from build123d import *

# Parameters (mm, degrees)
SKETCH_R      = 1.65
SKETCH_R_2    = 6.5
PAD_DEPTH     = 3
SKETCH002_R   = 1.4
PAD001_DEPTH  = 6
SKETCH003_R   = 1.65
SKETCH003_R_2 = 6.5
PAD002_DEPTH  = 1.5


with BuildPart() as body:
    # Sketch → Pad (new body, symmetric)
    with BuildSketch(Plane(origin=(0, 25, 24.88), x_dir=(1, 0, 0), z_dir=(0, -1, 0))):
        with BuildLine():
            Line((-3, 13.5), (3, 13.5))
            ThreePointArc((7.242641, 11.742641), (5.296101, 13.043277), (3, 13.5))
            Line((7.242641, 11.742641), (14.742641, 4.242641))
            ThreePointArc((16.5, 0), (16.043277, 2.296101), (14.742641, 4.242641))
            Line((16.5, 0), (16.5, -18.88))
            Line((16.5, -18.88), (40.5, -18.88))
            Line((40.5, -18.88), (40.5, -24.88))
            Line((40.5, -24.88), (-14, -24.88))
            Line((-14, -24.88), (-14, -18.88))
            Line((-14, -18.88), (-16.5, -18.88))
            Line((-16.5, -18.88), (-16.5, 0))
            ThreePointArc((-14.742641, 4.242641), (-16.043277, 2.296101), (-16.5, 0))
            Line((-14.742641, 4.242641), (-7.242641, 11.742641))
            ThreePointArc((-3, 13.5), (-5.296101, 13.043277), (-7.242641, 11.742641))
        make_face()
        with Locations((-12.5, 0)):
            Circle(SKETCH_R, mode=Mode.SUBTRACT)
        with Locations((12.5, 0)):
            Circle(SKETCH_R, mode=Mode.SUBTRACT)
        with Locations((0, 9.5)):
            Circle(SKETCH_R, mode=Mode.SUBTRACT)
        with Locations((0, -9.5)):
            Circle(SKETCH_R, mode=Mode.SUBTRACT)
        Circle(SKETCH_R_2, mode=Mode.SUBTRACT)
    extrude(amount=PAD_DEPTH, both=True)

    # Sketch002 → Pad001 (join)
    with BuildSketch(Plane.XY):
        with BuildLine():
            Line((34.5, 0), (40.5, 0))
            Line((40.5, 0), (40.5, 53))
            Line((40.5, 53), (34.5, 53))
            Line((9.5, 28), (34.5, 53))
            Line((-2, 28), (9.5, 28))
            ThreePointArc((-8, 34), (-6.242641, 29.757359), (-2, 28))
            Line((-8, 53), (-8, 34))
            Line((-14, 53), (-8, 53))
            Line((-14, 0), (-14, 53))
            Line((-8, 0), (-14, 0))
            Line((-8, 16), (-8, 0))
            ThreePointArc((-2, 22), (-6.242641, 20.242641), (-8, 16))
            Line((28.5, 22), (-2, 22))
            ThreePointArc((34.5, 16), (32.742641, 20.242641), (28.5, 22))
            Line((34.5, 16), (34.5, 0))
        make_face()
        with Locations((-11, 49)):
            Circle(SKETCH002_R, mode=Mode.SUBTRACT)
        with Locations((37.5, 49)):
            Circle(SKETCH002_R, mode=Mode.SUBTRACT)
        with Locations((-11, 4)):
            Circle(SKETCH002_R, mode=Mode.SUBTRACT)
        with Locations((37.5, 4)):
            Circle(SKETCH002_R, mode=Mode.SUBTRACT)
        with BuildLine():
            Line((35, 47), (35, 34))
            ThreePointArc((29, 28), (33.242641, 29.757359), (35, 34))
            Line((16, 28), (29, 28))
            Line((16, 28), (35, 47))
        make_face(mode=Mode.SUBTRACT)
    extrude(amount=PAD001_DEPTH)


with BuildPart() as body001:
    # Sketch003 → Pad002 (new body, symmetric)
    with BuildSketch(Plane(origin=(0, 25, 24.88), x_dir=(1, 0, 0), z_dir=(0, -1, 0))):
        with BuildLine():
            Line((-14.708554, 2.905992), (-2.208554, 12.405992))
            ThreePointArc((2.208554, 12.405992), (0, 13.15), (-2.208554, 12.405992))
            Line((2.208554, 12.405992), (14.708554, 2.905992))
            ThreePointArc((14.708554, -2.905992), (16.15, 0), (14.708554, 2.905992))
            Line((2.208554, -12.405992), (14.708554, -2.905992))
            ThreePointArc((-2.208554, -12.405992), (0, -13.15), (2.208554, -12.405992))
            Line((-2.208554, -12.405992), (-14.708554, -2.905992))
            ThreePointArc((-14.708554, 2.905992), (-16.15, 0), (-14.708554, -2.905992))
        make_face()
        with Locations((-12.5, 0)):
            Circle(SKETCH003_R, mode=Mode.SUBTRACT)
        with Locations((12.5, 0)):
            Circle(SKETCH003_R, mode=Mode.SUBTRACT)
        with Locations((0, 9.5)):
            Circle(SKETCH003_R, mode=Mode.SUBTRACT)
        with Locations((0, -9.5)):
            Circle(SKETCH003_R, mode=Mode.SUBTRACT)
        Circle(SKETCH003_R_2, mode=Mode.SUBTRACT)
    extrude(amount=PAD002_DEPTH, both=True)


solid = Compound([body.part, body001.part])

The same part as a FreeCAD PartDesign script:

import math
import FreeCAD as App
import Part
import Sketcher
from FreeCAD import Vector

doc = App.newDocument("Part")
body = doc.addObject("PartDesign::Body", "Body")

sketch1 = body.newObject("Sketcher::SketchObject", "Sketch")
sketch1.AttachmentSupport = (doc.getObject("XZ_Plane"), [""])
sketch1.MapMode = "FlatFace"
sketch1.AttachmentOffset = App.Placement(Vector(0, 0, -25), App.Rotation())
sketch1.addGeometry(Part.LineSegment(Vector(3, 38.38, 0), Vector(-3, 38.38, 0)), False)
sketch1.addGeometry(Part.ArcOfCircle(Part.Circle(Vector(-2.999999, 32.379997, 0), Vector(0, 0, 1), 6.000003), math.radians(90.000007), math.radians(134.999983)), False)
sketch1.addGeometry(Part.LineSegment(Vector(-7.242641, 36.622641, 0), Vector(-14.742641, 29.122641, 0)), False)
sketch1.addGeometry(Part.ArcOfCircle(Part.Circle(Vector(-10.499997, 24.879999, 0), Vector(0, 0, 1), 6.000003), math.radians(135.000017), math.radians(179.999993)), False)
sketch1.addGeometry(Part.LineSegment(Vector(-16.5, 24.88, 0), Vector(-16.5, 6, 0)), False)
sketch1.addGeometry(Part.LineSegment(Vector(-16.5, 6, 0), Vector(-14, 6, 0)), False)
sketch1.addGeometry(Part.LineSegment(Vector(-14, 6, 0), Vector(-14, 0, 0)), False)
sketch1.addGeometry(Part.LineSegment(Vector(-14, 0, 0), Vector(40.5, 0, 0)), False)
sketch1.addGeometry(Part.LineSegment(Vector(40.5, 0, 0), Vector(40.5, 6, 0)), False)
sketch1.addGeometry(Part.LineSegment(Vector(40.5, 6, 0), Vector(16.5, 6, 0)), False)
sketch1.addGeometry(Part.LineSegment(Vector(16.5, 6, 0), Vector(16.5, 24.88, 0)), False)
sketch1.addGeometry(Part.ArcOfCircle(Part.Circle(Vector(10.499997, 24.879999, 0), Vector(0, 0, 1), 6.000003), math.radians(0.000007), math.radians(44.999983)), False)
sketch1.addGeometry(Part.LineSegment(Vector(14.742641, 29.122641, 0), Vector(7.242641, 36.622641, 0)), False)
sketch1.addGeometry(Part.ArcOfCircle(Part.Circle(Vector(2.999999, 32.379997, 0), Vector(0, 0, 1), 6.000003), math.radians(45.000017), math.radians(89.999993)), False)
sketch1.addGeometry(Part.Circle(Vector(0, 15.38, 0), Vector(0, 0, 1), 1.65), False)
sketch1.addGeometry(Part.Circle(Vector(12.5, 24.88, 0), Vector(0, 0, 1), 1.65), False)
sketch1.addGeometry(Part.Circle(Vector(0, 24.88, 0), Vector(0, 0, 1), 6.5), False)
sketch1.addGeometry(Part.Circle(Vector(-12.5, 24.88, 0), Vector(0, 0, 1), 1.65), False)
sketch1.addGeometry(Part.Circle(Vector(0, 34.38, 0), Vector(0, 0, 1), 1.65), False)
sketch1.addConstraint(Sketcher.Constraint("Tangent", 0, 2, 1, 1))
sketch1.addConstraint(Sketcher.Constraint("Tangent", 1, 2, 2, 1))
sketch1.addConstraint(Sketcher.Constraint("Tangent", 2, 2, 3, 1))
sketch1.addConstraint(Sketcher.Constraint("Tangent", 3, 2, 4, 1))
sketch1.addConstraint(Sketcher.Constraint("Coincident", 4, 2, 5, 1))
sketch1.addConstraint(Sketcher.Constraint("Coincident", 5, 2, 6, 1))
sketch1.addConstraint(Sketcher.Constraint("Coincident", 6, 2, 7, 1))
sketch1.addConstraint(Sketcher.Constraint("Coincident", 7, 2, 8, 1))
sketch1.addConstraint(Sketcher.Constraint("Coincident", 8, 2, 9, 1))
sketch1.addConstraint(Sketcher.Constraint("Coincident", 9, 2, 10, 1))
sketch1.addConstraint(Sketcher.Constraint("Tangent", 10, 2, 11, 1))
sketch1.addConstraint(Sketcher.Constraint("Tangent", 11, 2, 12, 1))
sketch1.addConstraint(Sketcher.Constraint("Tangent", 12, 2, 13, 1))
sketch1.addConstraint(Sketcher.Constraint("Tangent", 13, 2, 0, 1))
sketch1.addConstraint(Sketcher.Constraint("Horizontal", 0))
sketch1.addConstraint(Sketcher.Constraint("Vertical", 4))
sketch1.addConstraint(Sketcher.Constraint("Horizontal", 5))
sketch1.addConstraint(Sketcher.Constraint("Vertical", 6))
sketch1.addConstraint(Sketcher.Constraint("Horizontal", 7))
sketch1.addConstraint(Sketcher.Constraint("Vertical", 8))
sketch1.addConstraint(Sketcher.Constraint("Horizontal", 9))
sketch1.addConstraint(Sketcher.Constraint("Vertical", 10))
sketch1.addConstraint(Sketcher.Constraint("Equal", 1, 3))
sketch1.addConstraint(Sketcher.Constraint("Equal", 3, 11))
sketch1.addConstraint(Sketcher.Constraint("Equal", 11, 13))
sketch1.addConstraint(Sketcher.Constraint("Equal", 14, 15))
sketch1.addConstraint(Sketcher.Constraint("Equal", 15, 17))
sketch1.addConstraint(Sketcher.Constraint("Equal", 17, 18))
sketch1.addConstraint(Sketcher.Constraint("Symmetric", 3, 3, 11, 3, -2))
sketch1.addConstraint(Sketcher.Constraint("Symmetric", 15, 3, 17, 3, -2))
sketch1.addConstraint(Sketcher.Constraint("PointOnObject", 14, 3, -2))
sketch1.addConstraint(Sketcher.Constraint("PointOnObject", 16, 3, -2))
sketch1.addConstraint(Sketcher.Constraint("PointOnObject", 18, 3, -2))
sketch1.addConstraint(Sketcher.Constraint("PointOnObject", 6, 2, -1))
sketch1.addConstraint(Sketcher.Constraint("Perpendicular", 2, 12))
sketch1.addConstraint(Sketcher.Constraint("Horizontal", 11, 3, 15, 3))
sketch1.addConstraint(Sketcher.Constraint("Horizontal", 15, 3, 16, 3))
sketch1.addConstraint(Sketcher.Constraint("Horizontal", 5, 2, 8, 2))
sketch1.addConstraint(Sketcher.Constraint("Horizontal", 2, 2, 11, 2))
sketch1.addConstraint(Sketcher.Constraint("Equal", 0, 6))
sketch1.addConstraint(Sketcher.Constraint("Diameter", 16, 13.0))
sketch1.addConstraint(Sketcher.Constraint("Diameter", 14, 3.3))
sketch1.addConstraint(Sketcher.Constraint("DistanceX", 0, 2, 0, 1, 6.0))
sketch1.addConstraint(Sketcher.Constraint("DistanceX", 9, 2, 9, 1, 24.0))
sketch1.addConstraint(Sketcher.Constraint("DistanceX", 5, 1, 5, 2, 2.5))
sketch1.addConstraint(Sketcher.Constraint("DistanceX", 7, 1, 7, 2, 54.5))
sketch1.addConstraint(Sketcher.Constraint("DistanceY", 18, 3, 0, 2, 4.0))
sketch1.addConstraint(Sketcher.Constraint("DistanceX", 3, 2, 17, 3, 4.0))
sketch1.addConstraint(Sketcher.Constraint("DistanceY", 4, 2, 4, 1, 18.88))
sketch1.addConstraint(Sketcher.Constraint("DistanceY", 14, 3, 3, 3, 9.499999))
sketch1.addConstraint(Sketcher.Constraint("DistanceX", 2, 2, 1, 2, 7.5))
pad1 = body.newObject("PartDesign::Pad", "Pad")
pad1.Profile = sketch1
pad1.Length = 6
pad1.Midplane = True

sketch2 = body.newObject("Sketcher::SketchObject", "Sketch001")
sketch2.AttachmentSupport = (doc.getObject("XY_Plane"), [""])
sketch2.MapMode = "FlatFace"
sketch2.addGeometry(Part.LineSegment(Vector(34.5, 0, 0), Vector(40.5, 0, 0)), False)
sketch2.addGeometry(Part.LineSegment(Vector(40.5, 0, 0), Vector(40.5, 53, 0)), False)
sketch2.addGeometry(Part.LineSegment(Vector(40.5, 53, 0), Vector(34.5, 53, 0)), False)
sketch2.addGeometry(Part.LineSegment(Vector(34.5, 53, 0), Vector(9.5, 28, 0)), False)
sketch2.addGeometry(Part.LineSegment(Vector(9.5, 28, 0), Vector(-2, 28, 0)), False)
sketch2.addGeometry(Part.ArcOfCircle(Part.Circle(Vector(-2.000001, 33.999999, 0), Vector(0, 0, 1), 5.999999), math.radians(179.99999), math.radians(270.00001)), False)
sketch2.addGeometry(Part.LineSegment(Vector(-8, 34, 0), Vector(-8, 53, 0)), False)
sketch2.addGeometry(Part.LineSegment(Vector(-8, 53, 0), Vector(-14, 53, 0)), False)
sketch2.addGeometry(Part.LineSegment(Vector(-14, 53, 0), Vector(-14, 0, 0)), False)
sketch2.addGeometry(Part.LineSegment(Vector(-14, 0, 0), Vector(-8, 0, 0)), False)
sketch2.addGeometry(Part.LineSegment(Vector(-8, 0, 0), Vector(-8, 16, 0)), False)
sketch2.addGeometry(Part.ArcOfCircle(Part.Circle(Vector(-2.000001, 16.000001, 0), Vector(0, 0, 1), 5.999999), math.radians(89.99999), math.radians(180.00001)), False)
sketch2.addGeometry(Part.LineSegment(Vector(-2, 22, 0), Vector(28.5, 22, 0)), False)
sketch2.addGeometry(Part.ArcOfCircle(Part.Circle(Vector(28.500001, 16.000001, 0), Vector(0, 0, 1), 5.999999), math.radians(-0.00001), math.radians(90.00001)), False)
sketch2.addGeometry(Part.LineSegment(Vector(34.5, 16, 0), Vector(34.5, 0, 0)), False)
sketch2.addGeometry(Part.Circle(Vector(-11, 4, 0), Vector(0, 0, 1), 1.4), False)
sketch2.addGeometry(Part.Circle(Vector(37.5, 4, 0), Vector(0, 0, 1), 1.4), False)
sketch2.addGeometry(Part.Circle(Vector(-11, 49, 0), Vector(0, 0, 1), 1.4), False)
sketch2.addGeometry(Part.LineSegment(Vector(16, 28, 0), Vector(35, 47, 0)), False)
sketch2.addGeometry(Part.LineSegment(Vector(35, 47, 0), Vector(35, 34, 0)), False)
sketch2.addGeometry(Part.ArcOfCircle(Part.Circle(Vector(29.000001, 33.999999, 0), Vector(0, 0, 1), 5.999999), math.radians(-90.00001), math.radians(0.00001)), False)
sketch2.addGeometry(Part.LineSegment(Vector(29, 28, 0), Vector(16, 28, 0)), False)
sketch2.addGeometry(Part.Circle(Vector(37.5, 49, 0), Vector(0, 0, 1), 1.4), False)
sketch2.addConstraint(Sketcher.Constraint("Coincident", 0, 2, 1, 1))
sketch2.addConstraint(Sketcher.Constraint("Coincident", 1, 2, 2, 1))
sketch2.addConstraint(Sketcher.Constraint("Coincident", 2, 2, 3, 1))
sketch2.addConstraint(Sketcher.Constraint("Coincident", 3, 2, 4, 1))
sketch2.addConstraint(Sketcher.Constraint("Tangent", 4, 2, 5, 2))
sketch2.addConstraint(Sketcher.Constraint("Tangent", 5, 1, 6, 1))
sketch2.addConstraint(Sketcher.Constraint("Coincident", 6, 2, 7, 1))
sketch2.addConstraint(Sketcher.Constraint("Coincident", 7, 2, 8, 1))
sketch2.addConstraint(Sketcher.Constraint("Coincident", 8, 2, 9, 1))
sketch2.addConstraint(Sketcher.Constraint("Coincident", 9, 2, 10, 1))
sketch2.addConstraint(Sketcher.Constraint("Tangent", 10, 2, 11, 2))
sketch2.addConstraint(Sketcher.Constraint("Tangent", 11, 1, 12, 1))
sketch2.addConstraint(Sketcher.Constraint("Tangent", 12, 2, 13, 2))
sketch2.addConstraint(Sketcher.Constraint("Tangent", 13, 1, 14, 1))
sketch2.addConstraint(Sketcher.Constraint("Coincident", 14, 2, 0, 1))
sketch2.addConstraint(Sketcher.Constraint("Coincident", 18, 2, 19, 1))
sketch2.addConstraint(Sketcher.Constraint("Tangent", 19, 2, 20, 2))
sketch2.addConstraint(Sketcher.Constraint("Tangent", 20, 1, 21, 1))
sketch2.addConstraint(Sketcher.Constraint("Coincident", 21, 2, 18, 1))
sketch2.addConstraint(Sketcher.Constraint("Horizontal", 0))
sketch2.addConstraint(Sketcher.Constraint("Vertical", 1))
sketch2.addConstraint(Sketcher.Constraint("Horizontal", 2))
sketch2.addConstraint(Sketcher.Constraint("Horizontal", 4))
sketch2.addConstraint(Sketcher.Constraint("Vertical", 6))
sketch2.addConstraint(Sketcher.Constraint("Horizontal", 7))
sketch2.addConstraint(Sketcher.Constraint("Vertical", 8))
sketch2.addConstraint(Sketcher.Constraint("Horizontal", 9))
sketch2.addConstraint(Sketcher.Constraint("Vertical", 10))
sketch2.addConstraint(Sketcher.Constraint("Horizontal", 12))
sketch2.addConstraint(Sketcher.Constraint("Vertical", 14))
sketch2.addConstraint(Sketcher.Constraint("Vertical", 19))
sketch2.addConstraint(Sketcher.Constraint("Horizontal", 21))
sketch2.addConstraint(Sketcher.Constraint("Equal", 5, 11))
sketch2.addConstraint(Sketcher.Constraint("Equal", 11, 13))
sketch2.addConstraint(Sketcher.Constraint("Equal", 15, 16))
sketch2.addConstraint(Sketcher.Constraint("Equal", 16, 17))
sketch2.addConstraint(Sketcher.Constraint("Equal", 13, 20))
sketch2.addConstraint(Sketcher.Constraint("Equal", 17, 22))
sketch2.addConstraint(Sketcher.Constraint("PointOnObject", 0, 2, -1))
sketch2.addConstraint(Sketcher.Constraint("PointOnObject", 8, 2, -1))
sketch2.addConstraint(Sketcher.Constraint("Parallel", 3, 18))
sketch2.addConstraint(Sketcher.Constraint("Horizontal", 15, 3, 16, 3))
sketch2.addConstraint(Sketcher.Constraint("Horizontal", 5, 3, 20, 3))
sketch2.addConstraint(Sketcher.Constraint("Horizontal", 17, 3, 22, 3))
sketch2.addConstraint(Sketcher.Constraint("Horizontal", 2, 2, 6, 2))
sketch2.addConstraint(Sketcher.Constraint("Vertical", 5, 3, 11, 3))
sketch2.addConstraint(Sketcher.Constraint("Vertical", 15, 3, 17, 3))
sketch2.addConstraint(Sketcher.Constraint("Vertical", 16, 3, 22, 3))
sketch2.addConstraint(Sketcher.Constraint("Vertical", 2, 2, 13, 1))
sketch2.addConstraint(Sketcher.Constraint("Equal", 2, 7))
sketch2.addConstraint(Sketcher.Constraint("Equal", 21, 19))
sketch2.addConstraint(Sketcher.Constraint("Radius", 5, 5.999999))
sketch2.addConstraint(Sketcher.Constraint("Diameter", 15, 2.8))
sketch2.addConstraint(Sketcher.Constraint("DistanceX", 0, 1, 0, 2, 6.0))
sketch2.addConstraint(Sketcher.Constraint("DistanceX", 21, 2, 21, 1, 13.0))
sketch2.addConstraint(Sketcher.Constraint("DistanceY", 1, 1, 1, 2, 53.0))
sketch2.addConstraint(Sketcher.Constraint("DistanceY", 6, 1, 6, 2, 19.0))
sketch2.addConstraint(Sketcher.Constraint("DistanceY", 10, 1, 10, 2, 16.0))
sketch2.addConstraint(Sketcher.Constraint("DistanceX", 4, 2, 4, 1, 11.5))
sketch2.addConstraint(Sketcher.Constraint("DistanceX", 5, 3, -1, 1, 2.000001))
sketch2.addConstraint(Sketcher.Constraint("DistanceX", 15, 3, -1, 1, 11.0))
sketch2.addConstraint(Sketcher.Constraint("DistanceY", -1, 1, 15, 3, 4.0))
sketch2.addConstraint(Sketcher.Constraint("DistanceY", -1, 1, 17, 3, 49.0))
sketch2.addConstraint(Sketcher.Constraint("DistanceX", -1, 1, 20, 3, 29.000001))
sketch2.addConstraint(Sketcher.Constraint("DistanceX", 13, 3, 16, 3, 8.999999))
pad2 = body.newObject("PartDesign::Pad", "Pad001")
pad2.Profile = sketch2
pad2.Length = 6
body2 = doc.addObject("PartDesign::Body", "Body001")

sketch3 = body2.newObject("Sketcher::SketchObject", "Sketch002")
sketch3.AttachmentSupport = (doc.getObject("XZ_Plane001"), [""])
sketch3.MapMode = "FlatFace"
sketch3.AttachmentOffset = App.Placement(Vector(0, 0, -25), App.Rotation())
sketch3.addGeometry(Part.LineSegment(Vector(-2.208554, 37.285992, 0), Vector(-14.708554, 27.785992, 0)), False)
sketch3.addGeometry(Part.ArcOfCircle(Part.Circle(Vector(-12.5, 24.88, 0), Vector(0, 0, 1), 3.65), math.radians(127.234836), math.radians(232.765164)), False)
sketch3.addGeometry(Part.LineSegment(Vector(-14.708554, 21.974008, 0), Vector(-2.208554, 12.474008, 0)), False)
sketch3.addGeometry(Part.ArcOfCircle(Part.Circle(Vector(0, 15.38, 0), Vector(0, 0, 1), 3.65), math.radians(-127.234833), math.radians(-52.765167)), False)
sketch3.addGeometry(Part.LineSegment(Vector(2.208554, 12.474008, 0), Vector(14.708554, 21.974008, 0)), False)
sketch3.addGeometry(Part.ArcOfCircle(Part.Circle(Vector(12.5, 24.88, 0), Vector(0, 0, 1), 3.65), math.radians(-52.765164), math.radians(52.765164)), False)
sketch3.addGeometry(Part.LineSegment(Vector(14.708554, 27.785992, 0), Vector(2.208554, 37.285992, 0)), False)
sketch3.addGeometry(Part.ArcOfCircle(Part.Circle(Vector(0, 34.38, 0), Vector(0, 0, 1), 3.65), math.radians(52.765167), math.radians(127.234833)), False)
sketch3.addGeometry(Part.Circle(Vector(0, 15.38, 0), Vector(0, 0, 1), 1.65), False)
sketch3.addGeometry(Part.Circle(Vector(0, 24.88, 0), Vector(0, 0, 1), 6.5), False)
sketch3.addGeometry(Part.Circle(Vector(12.5, 24.88, 0), Vector(0, 0, 1), 1.65), False)
sketch3.addGeometry(Part.Circle(Vector(-12.5, 24.88, 0), Vector(0, 0, 1), 1.65), False)
sketch3.addGeometry(Part.Circle(Vector(0, 34.38, 0), Vector(0, 0, 1), 1.65), False)
sketch3.addConstraint(Sketcher.Constraint("Tangent", 0, 2, 1, 1))
sketch3.addConstraint(Sketcher.Constraint("Tangent", 1, 2, 2, 1))
sketch3.addConstraint(Sketcher.Constraint("Tangent", 2, 2, 3, 1))
sketch3.addConstraint(Sketcher.Constraint("Tangent", 3, 2, 4, 1))
sketch3.addConstraint(Sketcher.Constraint("Tangent", 4, 2, 5, 1))
sketch3.addConstraint(Sketcher.Constraint("Tangent", 5, 2, 6, 1))
sketch3.addConstraint(Sketcher.Constraint("Tangent", 6, 2, 7, 1))
sketch3.addConstraint(Sketcher.Constraint("Tangent", 7, 2, 0, 1))
sketch3.addConstraint(Sketcher.Constraint("Coincident", 8, 3, 3, 3))
sketch3.addConstraint(Sketcher.Constraint("Coincident", 10, 3, 5, 3))
sketch3.addConstraint(Sketcher.Constraint("Coincident", 11, 3, 1, 3))
sketch3.addConstraint(Sketcher.Constraint("Coincident", 12, 3, 7, 3))
sketch3.addConstraint(Sketcher.Constraint("Equal", 1, 3))
sketch3.addConstraint(Sketcher.Constraint("Equal", 3, 5))
sketch3.addConstraint(Sketcher.Constraint("Equal", 5, 7))
sketch3.addConstraint(Sketcher.Constraint("Equal", 8, 10))
sketch3.addConstraint(Sketcher.Constraint("Equal", 10, 11))
sketch3.addConstraint(Sketcher.Constraint("Equal", 11, 12))
sketch3.addConstraint(Sketcher.Constraint("Symmetric", 1, 3, 5, 3, -2))
sketch3.addConstraint(Sketcher.Constraint("PointOnObject", 3, 3, -2))
sketch3.addConstraint(Sketcher.Constraint("PointOnObject", 7, 3, -2))
sketch3.addConstraint(Sketcher.Constraint("PointOnObject", 9, 3, -2))
sketch3.addConstraint(Sketcher.Constraint("Parallel", 0, 4))
sketch3.addConstraint(Sketcher.Constraint("Horizontal", 5, 3, 9, 3))
sketch3.addConstraint(Sketcher.Constraint("Diameter", 9, 13.0))
sketch3.addConstraint(Sketcher.Constraint("Diameter", 8, 3.3))
sketch3.addConstraint(Sketcher.Constraint("Radius", 1, 3.65))
sketch3.addConstraint(Sketcher.Constraint("DistanceX", 1, 3, 5, 3, 25.0))
sketch3.addConstraint(Sketcher.Constraint("DistanceY", 3, 3, 7, 3, 19.0))
sketch3.addConstraint(Sketcher.Constraint("DistanceY", -1, 1, 1, 3, 24.88))
pad3 = body2.newObject("PartDesign::Pad", "Pad002")
pad3.Profile = sketch3
pad3.Length = 3
pad3.Midplane = True

doc.recompute()
